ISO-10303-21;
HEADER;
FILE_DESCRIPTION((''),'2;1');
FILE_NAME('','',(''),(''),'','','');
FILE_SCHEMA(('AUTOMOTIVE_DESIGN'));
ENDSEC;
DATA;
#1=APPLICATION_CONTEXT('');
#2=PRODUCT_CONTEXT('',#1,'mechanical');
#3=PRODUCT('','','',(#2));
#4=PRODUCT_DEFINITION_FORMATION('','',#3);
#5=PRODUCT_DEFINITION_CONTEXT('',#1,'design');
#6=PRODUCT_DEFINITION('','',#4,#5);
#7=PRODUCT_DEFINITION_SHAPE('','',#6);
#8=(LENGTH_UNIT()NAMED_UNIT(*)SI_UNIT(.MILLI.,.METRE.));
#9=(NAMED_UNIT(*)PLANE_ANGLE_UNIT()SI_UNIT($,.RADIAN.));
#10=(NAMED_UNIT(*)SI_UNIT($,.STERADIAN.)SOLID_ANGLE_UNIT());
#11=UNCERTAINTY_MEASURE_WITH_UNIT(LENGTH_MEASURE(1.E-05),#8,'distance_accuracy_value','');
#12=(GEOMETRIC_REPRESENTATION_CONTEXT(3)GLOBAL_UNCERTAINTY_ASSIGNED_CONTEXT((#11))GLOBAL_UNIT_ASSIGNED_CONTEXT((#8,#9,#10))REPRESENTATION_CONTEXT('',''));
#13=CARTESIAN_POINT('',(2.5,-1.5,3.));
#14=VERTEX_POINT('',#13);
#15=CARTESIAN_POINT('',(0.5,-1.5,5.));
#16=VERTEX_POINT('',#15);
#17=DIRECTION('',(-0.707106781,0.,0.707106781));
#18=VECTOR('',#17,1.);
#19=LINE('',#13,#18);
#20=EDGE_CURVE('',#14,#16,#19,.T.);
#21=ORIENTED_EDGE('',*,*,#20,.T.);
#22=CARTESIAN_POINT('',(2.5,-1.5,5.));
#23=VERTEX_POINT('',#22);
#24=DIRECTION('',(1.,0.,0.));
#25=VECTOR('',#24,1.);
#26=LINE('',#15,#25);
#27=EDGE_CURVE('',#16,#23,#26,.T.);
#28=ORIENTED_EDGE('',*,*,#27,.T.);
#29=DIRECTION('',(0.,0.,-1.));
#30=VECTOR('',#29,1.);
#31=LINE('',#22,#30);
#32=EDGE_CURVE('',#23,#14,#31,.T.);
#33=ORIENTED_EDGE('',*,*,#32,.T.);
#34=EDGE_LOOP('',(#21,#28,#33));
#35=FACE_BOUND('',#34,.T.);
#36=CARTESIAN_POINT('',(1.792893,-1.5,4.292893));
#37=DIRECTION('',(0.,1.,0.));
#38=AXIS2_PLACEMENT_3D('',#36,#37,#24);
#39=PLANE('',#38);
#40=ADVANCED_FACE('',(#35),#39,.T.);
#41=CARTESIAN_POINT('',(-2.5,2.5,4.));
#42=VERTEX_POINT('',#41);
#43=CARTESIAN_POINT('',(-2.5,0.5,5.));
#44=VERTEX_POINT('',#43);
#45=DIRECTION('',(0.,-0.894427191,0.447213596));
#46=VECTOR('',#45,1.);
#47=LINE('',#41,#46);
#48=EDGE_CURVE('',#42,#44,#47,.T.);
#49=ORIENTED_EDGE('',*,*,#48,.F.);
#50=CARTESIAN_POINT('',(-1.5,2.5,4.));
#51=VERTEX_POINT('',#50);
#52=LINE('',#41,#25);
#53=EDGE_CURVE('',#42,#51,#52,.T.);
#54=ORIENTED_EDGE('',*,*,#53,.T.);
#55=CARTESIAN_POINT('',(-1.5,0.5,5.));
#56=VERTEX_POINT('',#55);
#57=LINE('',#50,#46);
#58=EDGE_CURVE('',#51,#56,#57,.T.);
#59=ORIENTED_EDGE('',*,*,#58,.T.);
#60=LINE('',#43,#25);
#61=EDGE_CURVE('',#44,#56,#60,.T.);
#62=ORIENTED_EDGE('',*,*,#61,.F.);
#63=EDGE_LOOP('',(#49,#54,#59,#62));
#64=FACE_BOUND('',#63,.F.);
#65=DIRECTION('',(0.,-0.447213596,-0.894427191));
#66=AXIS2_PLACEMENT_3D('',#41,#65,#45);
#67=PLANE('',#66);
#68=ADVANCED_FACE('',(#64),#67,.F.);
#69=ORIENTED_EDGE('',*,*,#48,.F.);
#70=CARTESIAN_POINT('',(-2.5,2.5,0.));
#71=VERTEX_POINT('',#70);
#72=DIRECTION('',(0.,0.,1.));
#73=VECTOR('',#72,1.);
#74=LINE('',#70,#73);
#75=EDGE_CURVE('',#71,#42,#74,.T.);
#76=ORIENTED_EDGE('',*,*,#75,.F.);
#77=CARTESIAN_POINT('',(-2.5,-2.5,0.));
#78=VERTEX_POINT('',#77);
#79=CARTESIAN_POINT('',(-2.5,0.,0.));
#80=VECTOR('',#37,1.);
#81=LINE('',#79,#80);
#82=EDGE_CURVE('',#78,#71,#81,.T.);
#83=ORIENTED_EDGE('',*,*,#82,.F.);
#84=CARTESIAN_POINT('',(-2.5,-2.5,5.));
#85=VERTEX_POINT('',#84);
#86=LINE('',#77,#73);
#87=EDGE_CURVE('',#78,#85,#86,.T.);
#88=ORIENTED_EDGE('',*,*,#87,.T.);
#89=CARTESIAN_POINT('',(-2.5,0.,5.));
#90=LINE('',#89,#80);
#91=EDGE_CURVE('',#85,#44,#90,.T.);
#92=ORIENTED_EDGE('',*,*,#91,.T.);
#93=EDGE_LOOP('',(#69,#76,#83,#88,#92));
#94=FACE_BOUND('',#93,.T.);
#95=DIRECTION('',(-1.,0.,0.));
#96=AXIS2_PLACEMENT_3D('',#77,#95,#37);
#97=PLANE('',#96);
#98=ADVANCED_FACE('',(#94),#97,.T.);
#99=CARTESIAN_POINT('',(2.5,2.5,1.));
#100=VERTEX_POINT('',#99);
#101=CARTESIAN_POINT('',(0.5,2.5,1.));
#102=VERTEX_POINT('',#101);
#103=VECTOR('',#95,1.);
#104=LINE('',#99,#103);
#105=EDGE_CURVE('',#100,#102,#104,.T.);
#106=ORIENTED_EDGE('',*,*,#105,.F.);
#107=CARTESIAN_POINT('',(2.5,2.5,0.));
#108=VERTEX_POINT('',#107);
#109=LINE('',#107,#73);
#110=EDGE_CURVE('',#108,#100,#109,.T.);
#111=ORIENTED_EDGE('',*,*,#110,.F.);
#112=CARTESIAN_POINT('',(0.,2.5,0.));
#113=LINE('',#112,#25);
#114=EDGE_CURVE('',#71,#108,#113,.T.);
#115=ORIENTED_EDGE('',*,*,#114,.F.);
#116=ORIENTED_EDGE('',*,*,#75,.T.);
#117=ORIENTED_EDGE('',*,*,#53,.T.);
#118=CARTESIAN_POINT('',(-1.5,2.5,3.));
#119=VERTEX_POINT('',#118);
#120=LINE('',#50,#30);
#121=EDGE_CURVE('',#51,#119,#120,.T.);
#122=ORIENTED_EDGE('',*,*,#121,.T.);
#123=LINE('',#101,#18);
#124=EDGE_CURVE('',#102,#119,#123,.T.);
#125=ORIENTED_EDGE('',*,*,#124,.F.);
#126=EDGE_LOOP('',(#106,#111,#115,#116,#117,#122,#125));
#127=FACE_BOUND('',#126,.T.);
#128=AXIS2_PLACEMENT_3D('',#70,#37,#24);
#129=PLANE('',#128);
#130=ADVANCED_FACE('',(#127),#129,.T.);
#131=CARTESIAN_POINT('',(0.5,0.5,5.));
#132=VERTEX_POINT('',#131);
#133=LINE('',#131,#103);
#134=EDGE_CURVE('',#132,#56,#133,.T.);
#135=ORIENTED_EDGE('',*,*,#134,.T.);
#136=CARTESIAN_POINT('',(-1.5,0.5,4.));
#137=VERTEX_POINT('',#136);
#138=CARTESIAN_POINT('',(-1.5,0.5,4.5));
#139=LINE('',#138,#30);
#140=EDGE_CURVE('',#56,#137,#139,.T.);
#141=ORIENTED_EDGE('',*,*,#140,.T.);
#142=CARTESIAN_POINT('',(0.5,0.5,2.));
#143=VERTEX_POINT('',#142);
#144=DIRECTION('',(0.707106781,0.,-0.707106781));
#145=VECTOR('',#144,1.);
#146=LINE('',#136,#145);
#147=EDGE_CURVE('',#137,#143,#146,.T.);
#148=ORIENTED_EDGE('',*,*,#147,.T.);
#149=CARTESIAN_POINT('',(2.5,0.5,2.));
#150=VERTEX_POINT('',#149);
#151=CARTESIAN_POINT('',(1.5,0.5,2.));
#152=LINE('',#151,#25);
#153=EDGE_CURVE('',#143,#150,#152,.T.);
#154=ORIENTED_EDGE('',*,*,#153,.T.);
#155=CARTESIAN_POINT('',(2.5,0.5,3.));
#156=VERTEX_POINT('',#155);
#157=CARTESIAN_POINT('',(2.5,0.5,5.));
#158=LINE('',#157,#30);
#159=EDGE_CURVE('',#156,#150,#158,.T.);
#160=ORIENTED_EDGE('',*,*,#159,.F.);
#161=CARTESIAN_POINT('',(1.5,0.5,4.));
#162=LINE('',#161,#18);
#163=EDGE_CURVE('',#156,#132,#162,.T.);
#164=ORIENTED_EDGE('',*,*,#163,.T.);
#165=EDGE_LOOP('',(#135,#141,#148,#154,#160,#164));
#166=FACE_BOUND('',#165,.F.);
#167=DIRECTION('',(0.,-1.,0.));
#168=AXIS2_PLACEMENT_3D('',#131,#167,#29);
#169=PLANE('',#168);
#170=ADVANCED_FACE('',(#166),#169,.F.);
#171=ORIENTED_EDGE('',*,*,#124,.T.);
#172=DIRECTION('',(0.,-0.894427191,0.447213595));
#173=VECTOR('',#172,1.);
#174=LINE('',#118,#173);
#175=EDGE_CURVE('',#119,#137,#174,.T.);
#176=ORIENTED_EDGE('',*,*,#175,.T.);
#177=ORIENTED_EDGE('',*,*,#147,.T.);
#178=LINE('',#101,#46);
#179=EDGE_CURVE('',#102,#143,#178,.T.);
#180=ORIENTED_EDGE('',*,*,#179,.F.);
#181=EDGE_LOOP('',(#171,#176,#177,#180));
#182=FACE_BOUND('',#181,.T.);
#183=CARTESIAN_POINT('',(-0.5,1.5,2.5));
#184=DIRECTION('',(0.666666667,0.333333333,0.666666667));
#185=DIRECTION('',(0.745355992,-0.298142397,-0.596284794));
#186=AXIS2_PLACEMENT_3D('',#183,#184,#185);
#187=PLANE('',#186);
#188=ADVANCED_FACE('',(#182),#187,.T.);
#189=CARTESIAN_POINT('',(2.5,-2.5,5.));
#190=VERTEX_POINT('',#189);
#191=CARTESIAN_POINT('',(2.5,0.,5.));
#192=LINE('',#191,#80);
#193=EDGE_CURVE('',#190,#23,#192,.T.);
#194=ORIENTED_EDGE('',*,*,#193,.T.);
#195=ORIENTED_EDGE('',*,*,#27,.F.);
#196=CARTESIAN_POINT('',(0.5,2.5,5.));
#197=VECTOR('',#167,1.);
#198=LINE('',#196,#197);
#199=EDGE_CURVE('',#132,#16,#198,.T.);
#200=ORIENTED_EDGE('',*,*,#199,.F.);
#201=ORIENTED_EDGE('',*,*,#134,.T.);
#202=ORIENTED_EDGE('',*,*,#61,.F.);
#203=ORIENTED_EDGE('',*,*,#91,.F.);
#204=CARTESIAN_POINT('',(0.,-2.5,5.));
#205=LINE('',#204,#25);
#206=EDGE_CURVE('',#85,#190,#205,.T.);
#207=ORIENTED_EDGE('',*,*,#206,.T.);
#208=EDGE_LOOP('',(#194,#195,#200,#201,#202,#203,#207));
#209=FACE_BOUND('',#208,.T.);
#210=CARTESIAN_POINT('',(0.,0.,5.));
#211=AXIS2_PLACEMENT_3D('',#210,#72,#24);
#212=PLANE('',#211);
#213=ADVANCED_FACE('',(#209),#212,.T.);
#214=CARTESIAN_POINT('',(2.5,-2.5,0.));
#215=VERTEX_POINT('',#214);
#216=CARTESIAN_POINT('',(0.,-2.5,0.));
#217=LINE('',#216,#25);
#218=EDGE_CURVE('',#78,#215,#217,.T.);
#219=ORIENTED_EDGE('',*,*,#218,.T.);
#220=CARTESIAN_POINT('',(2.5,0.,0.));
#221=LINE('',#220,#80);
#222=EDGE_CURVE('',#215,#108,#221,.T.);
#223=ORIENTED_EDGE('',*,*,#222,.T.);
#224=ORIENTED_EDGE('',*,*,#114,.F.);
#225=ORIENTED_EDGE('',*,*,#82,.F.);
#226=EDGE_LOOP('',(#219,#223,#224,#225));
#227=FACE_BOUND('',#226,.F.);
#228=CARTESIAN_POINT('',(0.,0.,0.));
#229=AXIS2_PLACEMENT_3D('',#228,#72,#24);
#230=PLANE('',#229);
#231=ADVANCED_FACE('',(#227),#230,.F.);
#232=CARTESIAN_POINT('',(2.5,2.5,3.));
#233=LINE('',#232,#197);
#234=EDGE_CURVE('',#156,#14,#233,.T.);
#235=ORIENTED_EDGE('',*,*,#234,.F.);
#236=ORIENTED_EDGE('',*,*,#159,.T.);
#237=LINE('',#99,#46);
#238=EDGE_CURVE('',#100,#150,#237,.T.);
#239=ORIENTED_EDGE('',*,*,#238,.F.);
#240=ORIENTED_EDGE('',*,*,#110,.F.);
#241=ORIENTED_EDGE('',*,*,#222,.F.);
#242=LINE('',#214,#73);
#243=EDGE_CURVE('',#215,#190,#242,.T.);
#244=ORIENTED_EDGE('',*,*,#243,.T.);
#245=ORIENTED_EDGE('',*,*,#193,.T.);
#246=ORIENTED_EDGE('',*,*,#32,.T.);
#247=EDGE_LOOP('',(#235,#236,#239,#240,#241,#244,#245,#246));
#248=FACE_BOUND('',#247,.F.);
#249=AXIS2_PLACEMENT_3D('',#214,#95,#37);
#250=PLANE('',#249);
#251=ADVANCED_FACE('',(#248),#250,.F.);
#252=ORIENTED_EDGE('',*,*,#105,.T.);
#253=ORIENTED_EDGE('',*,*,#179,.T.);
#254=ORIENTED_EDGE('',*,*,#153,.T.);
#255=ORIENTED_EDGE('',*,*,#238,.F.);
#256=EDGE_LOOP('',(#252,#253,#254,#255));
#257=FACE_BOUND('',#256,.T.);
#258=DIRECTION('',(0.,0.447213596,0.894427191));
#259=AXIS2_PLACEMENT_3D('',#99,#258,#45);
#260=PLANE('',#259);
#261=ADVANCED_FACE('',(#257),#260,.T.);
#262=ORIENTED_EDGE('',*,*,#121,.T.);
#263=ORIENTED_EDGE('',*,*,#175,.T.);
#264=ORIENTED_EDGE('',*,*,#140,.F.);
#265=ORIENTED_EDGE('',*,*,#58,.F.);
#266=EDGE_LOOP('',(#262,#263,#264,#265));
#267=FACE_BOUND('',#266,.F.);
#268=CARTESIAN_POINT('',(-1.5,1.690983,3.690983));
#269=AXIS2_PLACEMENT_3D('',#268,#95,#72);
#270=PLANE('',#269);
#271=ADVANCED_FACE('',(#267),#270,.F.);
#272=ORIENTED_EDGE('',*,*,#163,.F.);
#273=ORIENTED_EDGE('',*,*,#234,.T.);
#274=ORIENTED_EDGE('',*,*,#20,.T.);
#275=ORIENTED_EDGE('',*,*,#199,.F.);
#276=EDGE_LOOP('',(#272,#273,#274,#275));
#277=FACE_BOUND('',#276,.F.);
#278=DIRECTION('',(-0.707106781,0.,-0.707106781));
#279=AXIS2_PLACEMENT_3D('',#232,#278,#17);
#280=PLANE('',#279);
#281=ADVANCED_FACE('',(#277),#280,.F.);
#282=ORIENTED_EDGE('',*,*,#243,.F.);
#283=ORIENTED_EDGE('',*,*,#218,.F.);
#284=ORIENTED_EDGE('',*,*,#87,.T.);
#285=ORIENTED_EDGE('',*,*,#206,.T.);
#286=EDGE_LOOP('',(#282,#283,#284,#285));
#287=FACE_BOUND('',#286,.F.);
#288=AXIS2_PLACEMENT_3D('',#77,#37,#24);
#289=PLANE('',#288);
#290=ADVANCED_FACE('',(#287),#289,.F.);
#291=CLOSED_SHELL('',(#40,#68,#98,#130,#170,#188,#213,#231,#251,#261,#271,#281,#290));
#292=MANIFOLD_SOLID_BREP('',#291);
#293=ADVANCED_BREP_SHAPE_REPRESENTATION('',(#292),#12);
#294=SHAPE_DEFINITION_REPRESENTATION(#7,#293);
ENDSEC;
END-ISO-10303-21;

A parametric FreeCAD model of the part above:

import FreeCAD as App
import Part
import Sketcher
from FreeCAD import Vector


def add_polygon(sketch, points):
    """Adds a closed chain of lines whose ends are joined by coincident constraints."""
    first, n = sketch.GeometryCount, len(points)
    for a, b in zip(points, points[1:] + points[:1]):
        sketch.addGeometry(Part.LineSegment(App.Vector(*a, 0), App.Vector(*b, 0)), False)
    for i in range(n):
        sketch.addConstraint(Sketcher.Constraint("Coincident", first + i, 2, first + (i + 1) % n, 1))

doc = App.newDocument("Part")
body = doc.addObject("PartDesign::Body", "Body")

sketch1 = body.newObject("Sketcher::SketchObject", "Sketch")
sketch1.AttachmentSupport = (doc.getObject("XY_Plane"), [""])
sketch1.MapMode = "FlatFace"
add_polygon(sketch1, [(-2.5, 2.5), (-2.5, -2.5), (2.5, -2.5), (2.5, 2.5)])
sketch1.addConstraint([
    Sketcher.Constraint("Vertical", 0),
    Sketcher.Constraint("Horizontal", 1),
    Sketcher.Constraint("Vertical", 2),
    Sketcher.Constraint("Horizontal", 3),
    Sketcher.Constraint("Symmetric", 0, 2, 2, 2, -1, 1),
    Sketcher.Constraint("Equal", 3, 0),
    Sketcher.Constraint("DistanceX", 1, 1, 1, 2, 5.0),
])
pad1 = body.newObject("PartDesign::Pad", "Pad")
pad1.Profile = sketch1
pad1.Length = 5

sketch2 = body.newObject("Sketcher::SketchObject", "Sketch001")
sketch2.AttachmentSupport = (doc.getObject("XZ_Plane"), [""])
sketch2.MapMode = "FlatFace"
sketch2.AttachmentOffset = App.Placement(Vector(0, 0, -2.5), App.Rotation())
add_polygon(sketch2, [(2.5, 5), (2.5, 3), (0.5, 5)])
sketch2.addConstraint([
    Sketcher.Constraint("Vertical", 0),
    Sketcher.Constraint("Horizontal", 2),
    Sketcher.Constraint("Equal", 2, 0),
    Sketcher.Constraint("DistanceX", 2, 1, 2, 2, 2.0),
    Sketcher.Constraint("DistanceY", -1, 1, 0, 2, 3.0),
    Sketcher.Constraint("DistanceX", -1, 1, 0, 2, 2.5),
])
pocket1 = body.newObject("PartDesign::Pocket", "Pocket")
pocket1.Profile = sketch2
pocket1.Length = 4
pocket1.Reversed = True

sketch3 = body.newObject("Sketcher::SketchObject", "Sketch002")
sketch3.AttachmentSupport = (doc.getObject("YZ_Plane"), [""])
sketch3.MapMode = "FlatFace"
sketch3.AttachmentOffset = App.Placement(Vector(0, 0, -2.5), App.Rotation())
add_polygon(sketch3, [(2.5, 5), (2.5, 4), (0.5, 5)])
sketch3.addConstraint([
    Sketcher.Constraint("Vertical", 0),
    Sketcher.Constraint("Horizontal", 2),
    Sketcher.Constraint("DistanceX", 2, 1, 2, 2, 2.0),
    Sketcher.Constraint("DistanceY", 0, 2, 0, 1, 1.0),
    Sketcher.Constraint("DistanceY", -1, 1, 0, 2, 4.0),
    Sketcher.Constraint("DistanceX", -1, 1, 0, 2, 2.5),
])
pocket2 = body.newObject("PartDesign::Pocket", "Pocket001")
pocket2.Profile = sketch3
pocket2.Length = 1
pocket2.Reversed = True

sketch4 = body.newObject("Sketcher::SketchObject", "Sketch003")
sketch4.AttachmentSupport = (doc.getObject("XY_Plane"), [""])
sketch4.MapMode = "FlatFace"
sketch4.AttachmentOffset = App.Placement(Vector(0, 0, 5), App.Rotation())
add_polygon(sketch4, [(0.5, 2.5), (0.5, 0.5), (2.5, 0.5), (2.5, 2.5)])
sketch4.addConstraint([
    Sketcher.Constraint("Vertical", 0),
    Sketcher.Constraint("Horizontal", 1),
    Sketcher.Constraint("Vertical", 2),
    Sketcher.Constraint("Horizontal", 3),
    Sketcher.Constraint("Equal", 3, 0),
    Sketcher.Constraint("DistanceX", 1, 1, 1, 2, 2.0),
    Sketcher.Constraint("DistanceX", -1, 1, 0, 2, 0.5),
    Sketcher.Constraint("DistanceY", -1, 1, 0, 2, 0.5),
])
pocket3 = body.newObject("PartDesign::Pocket", "Pocket002")
pocket3.Profile = sketch4
pocket3.Length = 3

sketch5 = body.newObject("Sketcher::SketchObject", "Sketch004")
sketch5.AttachmentSupport = (doc.getObject("YZ_Plane"), [""])
sketch5.MapMode = "FlatFace"
sketch5.AttachmentOffset = App.Placement(Vector(0, 0, 2.5), App.Rotation())
add_polygon(sketch5, [(0.5, 2), (2.5, 1), (2.5, 2)])
sketch5.addConstraint([
    Sketcher.Constraint("Vertical", 1),
    Sketcher.Constraint("Horizontal", 2),
    Sketcher.Constraint("DistanceX", 2, 2, 2, 1, 2.0),
    Sketcher.Constraint("DistanceY", 1, 1, 1, 2, 1.0),
    Sketcher.Constraint("DistanceY", -1, 1, 0, 2, 1.0),
    Sketcher.Constraint("DistanceX", -1, 1, 0, 2, 2.5),
])
pocket4 = body.newObject("PartDesign::Pocket", "Pocket003")
pocket4.Profile = sketch5
pocket4.Length = 2

sketch6 = body.newObject("Sketcher::SketchObject", "Sketch005")
sketch6.AttachmentSupport = (doc.getObject("YZ_Plane"), [""])
sketch6.MapMode = "FlatFace"
sketch6.AttachmentOffset = App.Placement(Vector(0, 0, 0.5), App.Rotation())
add_polygon(sketch6, [(2.5, 5), (0.5, 5), (0.5, 4), (2.5, 4)])
sketch6.addConstraint([
    Sketcher.Constraint("Horizontal", 0),
    Sketcher.Constraint("Vertical", 1),
    Sketcher.Constraint("Horizontal", 2),
    Sketcher.Constraint("Vertical", 3),
    Sketcher.Constraint("DistanceX", 0, 2, 0, 1, 2.0),
    Sketcher.Constraint("DistanceY", 1, 2, 1, 1, 1.0),
    Sketcher.Constraint("DistanceY", -1, 1, 0, 2, 5.0),
    Sketcher.Constraint("DistanceX", -1, 1, 0, 2, 0.5),
])
pocket5 = body.newObject("PartDesign::Pocket", "Pocket004")
pocket5.Profile = sketch6
pocket5.Length = 2

sketch7 = body.newObject("Sketcher::SketchObject", "Sketch006")
sketch7.Placement = App.Placement(Vector(1.222222, 0.611111, 1.222222), App.Rotation(Vector(-0.745355992, 0.298142397, 0.596284794), Vector(0, 0.894427191, -0.447213595), Vector(-0.666666667, -0.333333333, -0.666666667), "ZXY"))
add_polygon(sketch7, [(0.968963, 1.788854), (0.968963, -0.447214), (3.652244, -1.341641), (3.652244, 0.894427)])
sketch7.addConstraint([
    Sketcher.Constraint("Vertical", 0),
    Sketcher.Constraint("Vertical", 2),
    Sketcher.Constraint("Parallel", 1, 3),
    Sketcher.Constraint("DistanceY", 0, 2, 0, 1, 2.236068),
    Sketcher.Constraint("DistanceY", 1, 2, -1, 1, 1.341641),
    Sketcher.Constraint("DistanceX", 0, 2, 1, 2, 2.683282),
    Sketcher.Constraint("DistanceY", 0, 2, 2, 2, 1.341641),
    Sketcher.Constraint("DistanceX", -1, 1, 0, 2, 0.968963),
])
pocket6 = body.newObject("PartDesign::Pocket", "Pocket005")
pocket6.Profile = sketch7
pocket6.Type = "ThroughAll"

sketch8 = body.newObject("Sketcher::SketchObject", "Sketch007")
sketch8.AttachmentSupport = (doc.getObject("YZ_Plane"), [""])
sketch8.MapMode = "FlatFace"
sketch8.AttachmentOffset = App.Placement(Vector(0, 0, -1.5), App.Rotation())
add_polygon(sketch8, [(0.5, 4), (2.5, 3), (2.5, 4)])
sketch8.addConstraint([
    Sketcher.Constraint("Vertical", 1),
    Sketcher.Constraint("Horizontal", 2),
    Sketcher.Constraint("DistanceX", 2, 2, 2, 1, 2.0),
    Sketcher.Constraint("DistanceY", 1, 1, 1, 2, 1.0),
    Sketcher.Constraint("DistanceY", -1, 1, 0, 2, 3.0),
    Sketcher.Constraint("DistanceX", -1, 1, 0, 2, 2.5),
])
pocket7 = body.newObject("PartDesign::Pocket", "Pocket006")
pocket7.Profile = sketch8
pocket7.Length = 2
pocket7.Reversed = True

sketch9 = body.newObject("Sketcher::SketchObject", "Sketch008")
sketch9.AttachmentSupport = (doc.getObject("XZ_Plane"), [""])
sketch9.MapMode = "FlatFace"
sketch9.AttachmentOffset = App.Placement(Vector(0, 0, -0.5), App.Rotation())
add_polygon(sketch9, [(0.5, 4), (0.5, 2), (-1.5, 4)])
sketch9.addConstraint([
    Sketcher.Constraint("Vertical", 0),
    Sketcher.Constraint("Horizontal", 2),
    Sketcher.Constraint("Equal", 2, 0),
    Sketcher.Constraint("DistanceX", 2, 1, 2, 2, 2.0),
    Sketcher.Constraint("DistanceY", -1, 1, 0, 2, 2.0),
    Sketcher.Constraint("DistanceX", -1, 1, 0, 2, 0.5),
])
pocket8 = body.newObject("PartDesign::Pocket", "Pocket007")
pocket8.Profile = sketch9
pocket8.Length = 2

doc.recompute()
